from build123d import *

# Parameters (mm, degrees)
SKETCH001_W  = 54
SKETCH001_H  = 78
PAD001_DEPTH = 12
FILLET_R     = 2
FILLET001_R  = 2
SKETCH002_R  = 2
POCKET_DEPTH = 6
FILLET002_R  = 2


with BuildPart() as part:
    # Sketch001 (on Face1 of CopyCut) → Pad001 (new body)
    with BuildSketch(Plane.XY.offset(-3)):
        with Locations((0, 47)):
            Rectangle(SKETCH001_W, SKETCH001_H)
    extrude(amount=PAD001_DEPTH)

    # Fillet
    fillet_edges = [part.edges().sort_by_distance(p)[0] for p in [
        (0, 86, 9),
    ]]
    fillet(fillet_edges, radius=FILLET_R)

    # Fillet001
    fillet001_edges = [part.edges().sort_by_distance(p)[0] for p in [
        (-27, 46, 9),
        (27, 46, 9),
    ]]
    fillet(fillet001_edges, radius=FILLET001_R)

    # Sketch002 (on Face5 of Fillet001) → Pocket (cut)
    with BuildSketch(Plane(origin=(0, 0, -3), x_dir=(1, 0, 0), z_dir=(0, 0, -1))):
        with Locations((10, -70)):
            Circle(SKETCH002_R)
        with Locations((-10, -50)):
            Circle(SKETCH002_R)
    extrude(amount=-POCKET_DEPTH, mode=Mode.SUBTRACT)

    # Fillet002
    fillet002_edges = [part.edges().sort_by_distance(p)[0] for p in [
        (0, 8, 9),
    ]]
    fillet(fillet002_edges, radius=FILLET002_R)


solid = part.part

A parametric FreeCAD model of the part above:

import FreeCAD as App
import Part
import Sketcher
from FreeCAD import Vector
Q = App.Units.Quantity


def edges_at(feature, points):
    """Names of the edges that pass closest to the given points."""
    edges = feature.Shape.Edges
    near = lambda p: min(range(len(edges)), key=lambda i: edges[i].distToShape(Part.Vertex(*p))[0])
    return sorted({f"Edge{near(p) + 1}" for p in points})

doc = App.newDocument("Part")
body = doc.addObject("PartDesign::Body", "Body")

# Sketch on XY plane
sketch1 = body.newObject("Sketcher::SketchObject", "Sketch")
sketch1.AttachmentSupport = (doc.getObject("XY_Plane"), [""])
sketch1.MapMode = "FlatFace"
sketch1.AttachmentOffset = App.Placement(Vector(0, 0, -3), App.Rotation())
sketch1.addGeometry(Part.LineSegment(Vector(-27, 86, 0), Vector(-27, 8, 0)), False)
sketch1.addGeometry(Part.LineSegment(Vector(-27, 8, 0), Vector(27, 8, 0)), False)
sketch1.addGeometry(Part.LineSegment(Vector(27, 8, 0), Vector(27, 86, 0)), False)
sketch1.addGeometry(Part.LineSegment(Vector(27, 86, 0), Vector(-27, 86, 0)), False)
sketch1.addConstraint(Sketcher.Constraint("Coincident", 0, 2, 1, 1))
sketch1.addConstraint(Sketcher.Constraint("Coincident", 1, 2, 2, 1))
sketch1.addConstraint(Sketcher.Constraint("Coincident", 2, 2, 3, 1))
sketch1.addConstraint(Sketcher.Constraint("Coincident", 3, 2, 0, 1))
sketch1.addConstraint(Sketcher.Constraint("Vertical", 0))
sketch1.addConstraint(Sketcher.Constraint("Horizontal", 1))
sketch1.addConstraint(Sketcher.Constraint("Vertical", 2))
sketch1.addConstraint(Sketcher.Constraint("Horizontal", 3))
sketch1.addConstraint(Sketcher.Constraint("DistanceX", 1, 1, 1, 2, Q("54 mm")))
sketch1.addConstraint(Sketcher.Constraint("DistanceY", 0, 2, 0, 1, Q("78 mm")))
sketch1.addConstraint(Sketcher.Constraint("DistanceX", 0, 2, -1, 1, Q("27 mm")))
sketch1.addConstraint(Sketcher.Constraint("DistanceY", -1, 1, 0, 2, Q("8 mm")))
pad1 = body.newObject("PartDesign::Pad", "Pad")
pad1.Profile = sketch1
pad1.Length = 12
doc.recompute()

fillet = body.newObject("PartDesign::Fillet", "Fillet")
fillet.Base = (pad1, edges_at(pad1, [(0, 86, 9)]))
fillet.Radius = 2
doc.recompute()

fillet2 = body.newObject("PartDesign::Fillet", "Fillet001")
fillet2.Base = (fillet, edges_at(fillet, [(-27, 46, 9), (27, 46, 9)]))
fillet2.Radius = 2

# Sketch on XY plane
sketch2 = body.newObject("Sketcher::SketchObject", "Sketch001")
sketch2.AttachmentSupport = (doc.getObject("XY_Plane"), [""])
sketch2.MapMode = "FlatFace"
sketch2.AttachmentOffset = App.Placement(Vector(0, 0, -3), App.Rotation())
sketch2.addGeometry(Part.Circle(Vector(10, 70, 0), Vector(0, 0, 1), 2), False)
sketch2.addGeometry(Part.Circle(Vector(-10, 50, 0), Vector(0, 0, 1), 2), False)
sketch2.addConstraint(Sketcher.Constraint("Equal", 0, 1))
sketch2.addConstraint(Sketcher.Constraint("Diameter", 0, Q("4 mm")))
sketch2.addConstraint(Sketcher.Constraint("DistanceX", -1, 1, 0, 3, Q("10 mm")))
sketch2.addConstraint(Sketcher.Constraint("DistanceY", -1, 1, 0, 3, Q("70 mm")))
sketch2.addConstraint(Sketcher.Constraint("DistanceX", 1, 3, -1, 1, Q("10 mm")))
sketch2.addConstraint(Sketcher.Constraint("DistanceY", -1, 1, 1, 3, Q("50 mm")))
pocket1 = body.newObject("PartDesign::Pocket", "Pocket")
pocket1.Profile = sketch2
pocket1.Length = 6
pocket1.Reversed = True
doc.recompute()

fillet3 = body.newObject("PartDesign::Fillet", "Fillet002")
fillet3.Base = (pocket1, edges_at(pocket1, [(0, 8, 9)]))
fillet3.Radius = 2

doc.recompute()
